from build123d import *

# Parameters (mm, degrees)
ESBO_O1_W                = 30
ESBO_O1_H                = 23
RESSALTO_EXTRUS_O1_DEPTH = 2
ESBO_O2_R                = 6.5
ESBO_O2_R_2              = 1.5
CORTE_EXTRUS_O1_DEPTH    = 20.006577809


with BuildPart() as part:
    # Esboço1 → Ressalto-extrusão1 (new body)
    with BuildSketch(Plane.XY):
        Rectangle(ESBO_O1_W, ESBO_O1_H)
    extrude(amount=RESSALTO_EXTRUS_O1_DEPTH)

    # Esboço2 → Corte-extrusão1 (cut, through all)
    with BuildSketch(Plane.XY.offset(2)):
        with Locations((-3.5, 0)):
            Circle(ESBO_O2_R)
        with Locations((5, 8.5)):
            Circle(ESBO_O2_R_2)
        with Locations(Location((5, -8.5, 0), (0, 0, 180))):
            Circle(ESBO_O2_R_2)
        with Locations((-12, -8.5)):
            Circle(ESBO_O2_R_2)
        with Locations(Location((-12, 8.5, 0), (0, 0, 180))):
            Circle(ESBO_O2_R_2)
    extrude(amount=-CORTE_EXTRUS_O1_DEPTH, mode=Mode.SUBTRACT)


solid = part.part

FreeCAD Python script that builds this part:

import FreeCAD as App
import Part
import Sketcher
Q = App.Units.Quantity

doc = App.newDocument("Part")
body = doc.addObject("PartDesign::Body", "Body")

# Sketch on XY plane
sketch1 = body.newObject("Sketcher::SketchObject", "Sketch")
sketch1.AttachmentSupport = (doc.getObject("XY_Plane"), [""])
sketch1.MapMode = "FlatFace"
sketch1.addGeometry(Part.LineSegment(App.Vector(-15, 12, 0), App.Vector(-15, -12, 0)), False)
sketch1.addGeometry(Part.LineSegment(App.Vector(-15, -12, 0), App.Vector(15, -12, 0)), False)
sketch1.addGeometry(Part.LineSegment(App.Vector(15, -12, 0), App.Vector(15, 12, 0)), False)
sketch1.addGeometry(Part.LineSegment(App.Vector(15, 12, 0), App.Vector(-15, 12, 0)), False)
sketch1.addConstraint(Sketcher.Constraint("Coincident", 0, 2, 1, 1))
sketch1.addConstraint(Sketcher.Constraint("Coincident", 1, 2, 2, 1))
sketch1.addConstraint(Sketcher.Constraint("Coincident", 2, 2, 3, 1))
sketch1.addConstraint(Sketcher.Constraint("Coincident", 3, 2, 0, 1))
sketch1.addConstraint(Sketcher.Constraint("Vertical", 0))
sketch1.addConstraint(Sketcher.Constraint("Horizontal", 1))
sketch1.addConstraint(Sketcher.Constraint("Vertical", 2))
sketch1.addConstraint(Sketcher.Constraint("Horizontal", 3))
sketch1.addConstraint(Sketcher.Constraint("Symmetric", 0, 2, 2, 2, -1, 1))
sketch1.addConstraint(Sketcher.Constraint("DistanceX", 1, 1, 1, 2, Q("30 mm")))
sketch1.addConstraint(Sketcher.Constraint("DistanceY", 0, 2, 0, 1, Q("23 mm")))
pad1 = body.newObject("PartDesign::Pad", "Pad")
pad1.Profile = sketch1
pad1.Length = 2

# Sketch on XY plane
sketch2 = body.newObject("Sketcher::SketchObject", "Sketch001")
sketch2.AttachmentSupport = (doc.getObject("XY_Plane"), [""])
sketch2.MapMode = "FlatFace"
sketch2.AttachmentOffset = App.Placement(App.Vector(0, 0, 2), App.Rotation())
sketch2.addGeometry(Part.Circle(App.Vector(-3.5, 0, 0), App.Vector(0, 0, 1), 6.5), False)
sketch2.addGeometry(Part.Circle(App.Vector(5, 8.5, 0), App.Vector(0, 0, 1), 1.5), False)
sketch2.addGeometry(Part.Circle(App.Vector(5, -8.5, 0), App.Vector(0, 0, 1), 1.5), False)
sketch2.addGeometry(Part.Circle(App.Vector(-12, -8.5, 0), App.Vector(0, 0, 1), 1.5), False)
sketch2.addGeometry(Part.Circle(App.Vector(-12, 8.5, 0), App.Vector(0, 0, 1), 1.5), False)
sketch2.addConstraint(Sketcher.Constraint("Equal", 1, 2))
sketch2.addConstraint(Sketcher.Constraint("Equal", 2, 3))
sketch2.addConstraint(Sketcher.Constraint("Equal", 3, 4))
sketch2.addConstraint(Sketcher.Constraint("Symmetric", 1, 3, 2, 3, -1))
sketch2.addConstraint(Sketcher.Constraint("Symmetric", 3, 3, 4, 3, -1))
sketch2.addConstraint(Sketcher.Constraint("PointOnObject", 0, 3, -1))
sketch2.addConstraint(Sketcher.Constraint("Horizontal", 2, 3, 3, 3))
sketch2.addConstraint(Sketcher.Constraint("Diameter", 0, Q("13 mm")))
sketch2.addConstraint(Sketcher.Constraint("Diameter", 1, Q("3 mm")))
sketch2.addConstraint(Sketcher.Constraint("DistanceX", -1, 1, 1, 3, Q("5 mm")))
sketch2.addConstraint(Sketcher.Constraint("DistanceX", 3, 3, -1, 1, Q("12 mm")))
sketch2.addConstraint(Sketcher.Constraint("DistanceY", 2, 3, 1, 3, Q("17 mm")))
sketch2.addConstraint(Sketcher.Constraint("DistanceX", 0, 3, -1, 1, Q("3.5 mm")))
pocket1 = body.newObject("PartDesign::Pocket", "Pocket")
pocket1.Profile = sketch2
pocket1.Type = "ThroughAll"

doc.recompute()
